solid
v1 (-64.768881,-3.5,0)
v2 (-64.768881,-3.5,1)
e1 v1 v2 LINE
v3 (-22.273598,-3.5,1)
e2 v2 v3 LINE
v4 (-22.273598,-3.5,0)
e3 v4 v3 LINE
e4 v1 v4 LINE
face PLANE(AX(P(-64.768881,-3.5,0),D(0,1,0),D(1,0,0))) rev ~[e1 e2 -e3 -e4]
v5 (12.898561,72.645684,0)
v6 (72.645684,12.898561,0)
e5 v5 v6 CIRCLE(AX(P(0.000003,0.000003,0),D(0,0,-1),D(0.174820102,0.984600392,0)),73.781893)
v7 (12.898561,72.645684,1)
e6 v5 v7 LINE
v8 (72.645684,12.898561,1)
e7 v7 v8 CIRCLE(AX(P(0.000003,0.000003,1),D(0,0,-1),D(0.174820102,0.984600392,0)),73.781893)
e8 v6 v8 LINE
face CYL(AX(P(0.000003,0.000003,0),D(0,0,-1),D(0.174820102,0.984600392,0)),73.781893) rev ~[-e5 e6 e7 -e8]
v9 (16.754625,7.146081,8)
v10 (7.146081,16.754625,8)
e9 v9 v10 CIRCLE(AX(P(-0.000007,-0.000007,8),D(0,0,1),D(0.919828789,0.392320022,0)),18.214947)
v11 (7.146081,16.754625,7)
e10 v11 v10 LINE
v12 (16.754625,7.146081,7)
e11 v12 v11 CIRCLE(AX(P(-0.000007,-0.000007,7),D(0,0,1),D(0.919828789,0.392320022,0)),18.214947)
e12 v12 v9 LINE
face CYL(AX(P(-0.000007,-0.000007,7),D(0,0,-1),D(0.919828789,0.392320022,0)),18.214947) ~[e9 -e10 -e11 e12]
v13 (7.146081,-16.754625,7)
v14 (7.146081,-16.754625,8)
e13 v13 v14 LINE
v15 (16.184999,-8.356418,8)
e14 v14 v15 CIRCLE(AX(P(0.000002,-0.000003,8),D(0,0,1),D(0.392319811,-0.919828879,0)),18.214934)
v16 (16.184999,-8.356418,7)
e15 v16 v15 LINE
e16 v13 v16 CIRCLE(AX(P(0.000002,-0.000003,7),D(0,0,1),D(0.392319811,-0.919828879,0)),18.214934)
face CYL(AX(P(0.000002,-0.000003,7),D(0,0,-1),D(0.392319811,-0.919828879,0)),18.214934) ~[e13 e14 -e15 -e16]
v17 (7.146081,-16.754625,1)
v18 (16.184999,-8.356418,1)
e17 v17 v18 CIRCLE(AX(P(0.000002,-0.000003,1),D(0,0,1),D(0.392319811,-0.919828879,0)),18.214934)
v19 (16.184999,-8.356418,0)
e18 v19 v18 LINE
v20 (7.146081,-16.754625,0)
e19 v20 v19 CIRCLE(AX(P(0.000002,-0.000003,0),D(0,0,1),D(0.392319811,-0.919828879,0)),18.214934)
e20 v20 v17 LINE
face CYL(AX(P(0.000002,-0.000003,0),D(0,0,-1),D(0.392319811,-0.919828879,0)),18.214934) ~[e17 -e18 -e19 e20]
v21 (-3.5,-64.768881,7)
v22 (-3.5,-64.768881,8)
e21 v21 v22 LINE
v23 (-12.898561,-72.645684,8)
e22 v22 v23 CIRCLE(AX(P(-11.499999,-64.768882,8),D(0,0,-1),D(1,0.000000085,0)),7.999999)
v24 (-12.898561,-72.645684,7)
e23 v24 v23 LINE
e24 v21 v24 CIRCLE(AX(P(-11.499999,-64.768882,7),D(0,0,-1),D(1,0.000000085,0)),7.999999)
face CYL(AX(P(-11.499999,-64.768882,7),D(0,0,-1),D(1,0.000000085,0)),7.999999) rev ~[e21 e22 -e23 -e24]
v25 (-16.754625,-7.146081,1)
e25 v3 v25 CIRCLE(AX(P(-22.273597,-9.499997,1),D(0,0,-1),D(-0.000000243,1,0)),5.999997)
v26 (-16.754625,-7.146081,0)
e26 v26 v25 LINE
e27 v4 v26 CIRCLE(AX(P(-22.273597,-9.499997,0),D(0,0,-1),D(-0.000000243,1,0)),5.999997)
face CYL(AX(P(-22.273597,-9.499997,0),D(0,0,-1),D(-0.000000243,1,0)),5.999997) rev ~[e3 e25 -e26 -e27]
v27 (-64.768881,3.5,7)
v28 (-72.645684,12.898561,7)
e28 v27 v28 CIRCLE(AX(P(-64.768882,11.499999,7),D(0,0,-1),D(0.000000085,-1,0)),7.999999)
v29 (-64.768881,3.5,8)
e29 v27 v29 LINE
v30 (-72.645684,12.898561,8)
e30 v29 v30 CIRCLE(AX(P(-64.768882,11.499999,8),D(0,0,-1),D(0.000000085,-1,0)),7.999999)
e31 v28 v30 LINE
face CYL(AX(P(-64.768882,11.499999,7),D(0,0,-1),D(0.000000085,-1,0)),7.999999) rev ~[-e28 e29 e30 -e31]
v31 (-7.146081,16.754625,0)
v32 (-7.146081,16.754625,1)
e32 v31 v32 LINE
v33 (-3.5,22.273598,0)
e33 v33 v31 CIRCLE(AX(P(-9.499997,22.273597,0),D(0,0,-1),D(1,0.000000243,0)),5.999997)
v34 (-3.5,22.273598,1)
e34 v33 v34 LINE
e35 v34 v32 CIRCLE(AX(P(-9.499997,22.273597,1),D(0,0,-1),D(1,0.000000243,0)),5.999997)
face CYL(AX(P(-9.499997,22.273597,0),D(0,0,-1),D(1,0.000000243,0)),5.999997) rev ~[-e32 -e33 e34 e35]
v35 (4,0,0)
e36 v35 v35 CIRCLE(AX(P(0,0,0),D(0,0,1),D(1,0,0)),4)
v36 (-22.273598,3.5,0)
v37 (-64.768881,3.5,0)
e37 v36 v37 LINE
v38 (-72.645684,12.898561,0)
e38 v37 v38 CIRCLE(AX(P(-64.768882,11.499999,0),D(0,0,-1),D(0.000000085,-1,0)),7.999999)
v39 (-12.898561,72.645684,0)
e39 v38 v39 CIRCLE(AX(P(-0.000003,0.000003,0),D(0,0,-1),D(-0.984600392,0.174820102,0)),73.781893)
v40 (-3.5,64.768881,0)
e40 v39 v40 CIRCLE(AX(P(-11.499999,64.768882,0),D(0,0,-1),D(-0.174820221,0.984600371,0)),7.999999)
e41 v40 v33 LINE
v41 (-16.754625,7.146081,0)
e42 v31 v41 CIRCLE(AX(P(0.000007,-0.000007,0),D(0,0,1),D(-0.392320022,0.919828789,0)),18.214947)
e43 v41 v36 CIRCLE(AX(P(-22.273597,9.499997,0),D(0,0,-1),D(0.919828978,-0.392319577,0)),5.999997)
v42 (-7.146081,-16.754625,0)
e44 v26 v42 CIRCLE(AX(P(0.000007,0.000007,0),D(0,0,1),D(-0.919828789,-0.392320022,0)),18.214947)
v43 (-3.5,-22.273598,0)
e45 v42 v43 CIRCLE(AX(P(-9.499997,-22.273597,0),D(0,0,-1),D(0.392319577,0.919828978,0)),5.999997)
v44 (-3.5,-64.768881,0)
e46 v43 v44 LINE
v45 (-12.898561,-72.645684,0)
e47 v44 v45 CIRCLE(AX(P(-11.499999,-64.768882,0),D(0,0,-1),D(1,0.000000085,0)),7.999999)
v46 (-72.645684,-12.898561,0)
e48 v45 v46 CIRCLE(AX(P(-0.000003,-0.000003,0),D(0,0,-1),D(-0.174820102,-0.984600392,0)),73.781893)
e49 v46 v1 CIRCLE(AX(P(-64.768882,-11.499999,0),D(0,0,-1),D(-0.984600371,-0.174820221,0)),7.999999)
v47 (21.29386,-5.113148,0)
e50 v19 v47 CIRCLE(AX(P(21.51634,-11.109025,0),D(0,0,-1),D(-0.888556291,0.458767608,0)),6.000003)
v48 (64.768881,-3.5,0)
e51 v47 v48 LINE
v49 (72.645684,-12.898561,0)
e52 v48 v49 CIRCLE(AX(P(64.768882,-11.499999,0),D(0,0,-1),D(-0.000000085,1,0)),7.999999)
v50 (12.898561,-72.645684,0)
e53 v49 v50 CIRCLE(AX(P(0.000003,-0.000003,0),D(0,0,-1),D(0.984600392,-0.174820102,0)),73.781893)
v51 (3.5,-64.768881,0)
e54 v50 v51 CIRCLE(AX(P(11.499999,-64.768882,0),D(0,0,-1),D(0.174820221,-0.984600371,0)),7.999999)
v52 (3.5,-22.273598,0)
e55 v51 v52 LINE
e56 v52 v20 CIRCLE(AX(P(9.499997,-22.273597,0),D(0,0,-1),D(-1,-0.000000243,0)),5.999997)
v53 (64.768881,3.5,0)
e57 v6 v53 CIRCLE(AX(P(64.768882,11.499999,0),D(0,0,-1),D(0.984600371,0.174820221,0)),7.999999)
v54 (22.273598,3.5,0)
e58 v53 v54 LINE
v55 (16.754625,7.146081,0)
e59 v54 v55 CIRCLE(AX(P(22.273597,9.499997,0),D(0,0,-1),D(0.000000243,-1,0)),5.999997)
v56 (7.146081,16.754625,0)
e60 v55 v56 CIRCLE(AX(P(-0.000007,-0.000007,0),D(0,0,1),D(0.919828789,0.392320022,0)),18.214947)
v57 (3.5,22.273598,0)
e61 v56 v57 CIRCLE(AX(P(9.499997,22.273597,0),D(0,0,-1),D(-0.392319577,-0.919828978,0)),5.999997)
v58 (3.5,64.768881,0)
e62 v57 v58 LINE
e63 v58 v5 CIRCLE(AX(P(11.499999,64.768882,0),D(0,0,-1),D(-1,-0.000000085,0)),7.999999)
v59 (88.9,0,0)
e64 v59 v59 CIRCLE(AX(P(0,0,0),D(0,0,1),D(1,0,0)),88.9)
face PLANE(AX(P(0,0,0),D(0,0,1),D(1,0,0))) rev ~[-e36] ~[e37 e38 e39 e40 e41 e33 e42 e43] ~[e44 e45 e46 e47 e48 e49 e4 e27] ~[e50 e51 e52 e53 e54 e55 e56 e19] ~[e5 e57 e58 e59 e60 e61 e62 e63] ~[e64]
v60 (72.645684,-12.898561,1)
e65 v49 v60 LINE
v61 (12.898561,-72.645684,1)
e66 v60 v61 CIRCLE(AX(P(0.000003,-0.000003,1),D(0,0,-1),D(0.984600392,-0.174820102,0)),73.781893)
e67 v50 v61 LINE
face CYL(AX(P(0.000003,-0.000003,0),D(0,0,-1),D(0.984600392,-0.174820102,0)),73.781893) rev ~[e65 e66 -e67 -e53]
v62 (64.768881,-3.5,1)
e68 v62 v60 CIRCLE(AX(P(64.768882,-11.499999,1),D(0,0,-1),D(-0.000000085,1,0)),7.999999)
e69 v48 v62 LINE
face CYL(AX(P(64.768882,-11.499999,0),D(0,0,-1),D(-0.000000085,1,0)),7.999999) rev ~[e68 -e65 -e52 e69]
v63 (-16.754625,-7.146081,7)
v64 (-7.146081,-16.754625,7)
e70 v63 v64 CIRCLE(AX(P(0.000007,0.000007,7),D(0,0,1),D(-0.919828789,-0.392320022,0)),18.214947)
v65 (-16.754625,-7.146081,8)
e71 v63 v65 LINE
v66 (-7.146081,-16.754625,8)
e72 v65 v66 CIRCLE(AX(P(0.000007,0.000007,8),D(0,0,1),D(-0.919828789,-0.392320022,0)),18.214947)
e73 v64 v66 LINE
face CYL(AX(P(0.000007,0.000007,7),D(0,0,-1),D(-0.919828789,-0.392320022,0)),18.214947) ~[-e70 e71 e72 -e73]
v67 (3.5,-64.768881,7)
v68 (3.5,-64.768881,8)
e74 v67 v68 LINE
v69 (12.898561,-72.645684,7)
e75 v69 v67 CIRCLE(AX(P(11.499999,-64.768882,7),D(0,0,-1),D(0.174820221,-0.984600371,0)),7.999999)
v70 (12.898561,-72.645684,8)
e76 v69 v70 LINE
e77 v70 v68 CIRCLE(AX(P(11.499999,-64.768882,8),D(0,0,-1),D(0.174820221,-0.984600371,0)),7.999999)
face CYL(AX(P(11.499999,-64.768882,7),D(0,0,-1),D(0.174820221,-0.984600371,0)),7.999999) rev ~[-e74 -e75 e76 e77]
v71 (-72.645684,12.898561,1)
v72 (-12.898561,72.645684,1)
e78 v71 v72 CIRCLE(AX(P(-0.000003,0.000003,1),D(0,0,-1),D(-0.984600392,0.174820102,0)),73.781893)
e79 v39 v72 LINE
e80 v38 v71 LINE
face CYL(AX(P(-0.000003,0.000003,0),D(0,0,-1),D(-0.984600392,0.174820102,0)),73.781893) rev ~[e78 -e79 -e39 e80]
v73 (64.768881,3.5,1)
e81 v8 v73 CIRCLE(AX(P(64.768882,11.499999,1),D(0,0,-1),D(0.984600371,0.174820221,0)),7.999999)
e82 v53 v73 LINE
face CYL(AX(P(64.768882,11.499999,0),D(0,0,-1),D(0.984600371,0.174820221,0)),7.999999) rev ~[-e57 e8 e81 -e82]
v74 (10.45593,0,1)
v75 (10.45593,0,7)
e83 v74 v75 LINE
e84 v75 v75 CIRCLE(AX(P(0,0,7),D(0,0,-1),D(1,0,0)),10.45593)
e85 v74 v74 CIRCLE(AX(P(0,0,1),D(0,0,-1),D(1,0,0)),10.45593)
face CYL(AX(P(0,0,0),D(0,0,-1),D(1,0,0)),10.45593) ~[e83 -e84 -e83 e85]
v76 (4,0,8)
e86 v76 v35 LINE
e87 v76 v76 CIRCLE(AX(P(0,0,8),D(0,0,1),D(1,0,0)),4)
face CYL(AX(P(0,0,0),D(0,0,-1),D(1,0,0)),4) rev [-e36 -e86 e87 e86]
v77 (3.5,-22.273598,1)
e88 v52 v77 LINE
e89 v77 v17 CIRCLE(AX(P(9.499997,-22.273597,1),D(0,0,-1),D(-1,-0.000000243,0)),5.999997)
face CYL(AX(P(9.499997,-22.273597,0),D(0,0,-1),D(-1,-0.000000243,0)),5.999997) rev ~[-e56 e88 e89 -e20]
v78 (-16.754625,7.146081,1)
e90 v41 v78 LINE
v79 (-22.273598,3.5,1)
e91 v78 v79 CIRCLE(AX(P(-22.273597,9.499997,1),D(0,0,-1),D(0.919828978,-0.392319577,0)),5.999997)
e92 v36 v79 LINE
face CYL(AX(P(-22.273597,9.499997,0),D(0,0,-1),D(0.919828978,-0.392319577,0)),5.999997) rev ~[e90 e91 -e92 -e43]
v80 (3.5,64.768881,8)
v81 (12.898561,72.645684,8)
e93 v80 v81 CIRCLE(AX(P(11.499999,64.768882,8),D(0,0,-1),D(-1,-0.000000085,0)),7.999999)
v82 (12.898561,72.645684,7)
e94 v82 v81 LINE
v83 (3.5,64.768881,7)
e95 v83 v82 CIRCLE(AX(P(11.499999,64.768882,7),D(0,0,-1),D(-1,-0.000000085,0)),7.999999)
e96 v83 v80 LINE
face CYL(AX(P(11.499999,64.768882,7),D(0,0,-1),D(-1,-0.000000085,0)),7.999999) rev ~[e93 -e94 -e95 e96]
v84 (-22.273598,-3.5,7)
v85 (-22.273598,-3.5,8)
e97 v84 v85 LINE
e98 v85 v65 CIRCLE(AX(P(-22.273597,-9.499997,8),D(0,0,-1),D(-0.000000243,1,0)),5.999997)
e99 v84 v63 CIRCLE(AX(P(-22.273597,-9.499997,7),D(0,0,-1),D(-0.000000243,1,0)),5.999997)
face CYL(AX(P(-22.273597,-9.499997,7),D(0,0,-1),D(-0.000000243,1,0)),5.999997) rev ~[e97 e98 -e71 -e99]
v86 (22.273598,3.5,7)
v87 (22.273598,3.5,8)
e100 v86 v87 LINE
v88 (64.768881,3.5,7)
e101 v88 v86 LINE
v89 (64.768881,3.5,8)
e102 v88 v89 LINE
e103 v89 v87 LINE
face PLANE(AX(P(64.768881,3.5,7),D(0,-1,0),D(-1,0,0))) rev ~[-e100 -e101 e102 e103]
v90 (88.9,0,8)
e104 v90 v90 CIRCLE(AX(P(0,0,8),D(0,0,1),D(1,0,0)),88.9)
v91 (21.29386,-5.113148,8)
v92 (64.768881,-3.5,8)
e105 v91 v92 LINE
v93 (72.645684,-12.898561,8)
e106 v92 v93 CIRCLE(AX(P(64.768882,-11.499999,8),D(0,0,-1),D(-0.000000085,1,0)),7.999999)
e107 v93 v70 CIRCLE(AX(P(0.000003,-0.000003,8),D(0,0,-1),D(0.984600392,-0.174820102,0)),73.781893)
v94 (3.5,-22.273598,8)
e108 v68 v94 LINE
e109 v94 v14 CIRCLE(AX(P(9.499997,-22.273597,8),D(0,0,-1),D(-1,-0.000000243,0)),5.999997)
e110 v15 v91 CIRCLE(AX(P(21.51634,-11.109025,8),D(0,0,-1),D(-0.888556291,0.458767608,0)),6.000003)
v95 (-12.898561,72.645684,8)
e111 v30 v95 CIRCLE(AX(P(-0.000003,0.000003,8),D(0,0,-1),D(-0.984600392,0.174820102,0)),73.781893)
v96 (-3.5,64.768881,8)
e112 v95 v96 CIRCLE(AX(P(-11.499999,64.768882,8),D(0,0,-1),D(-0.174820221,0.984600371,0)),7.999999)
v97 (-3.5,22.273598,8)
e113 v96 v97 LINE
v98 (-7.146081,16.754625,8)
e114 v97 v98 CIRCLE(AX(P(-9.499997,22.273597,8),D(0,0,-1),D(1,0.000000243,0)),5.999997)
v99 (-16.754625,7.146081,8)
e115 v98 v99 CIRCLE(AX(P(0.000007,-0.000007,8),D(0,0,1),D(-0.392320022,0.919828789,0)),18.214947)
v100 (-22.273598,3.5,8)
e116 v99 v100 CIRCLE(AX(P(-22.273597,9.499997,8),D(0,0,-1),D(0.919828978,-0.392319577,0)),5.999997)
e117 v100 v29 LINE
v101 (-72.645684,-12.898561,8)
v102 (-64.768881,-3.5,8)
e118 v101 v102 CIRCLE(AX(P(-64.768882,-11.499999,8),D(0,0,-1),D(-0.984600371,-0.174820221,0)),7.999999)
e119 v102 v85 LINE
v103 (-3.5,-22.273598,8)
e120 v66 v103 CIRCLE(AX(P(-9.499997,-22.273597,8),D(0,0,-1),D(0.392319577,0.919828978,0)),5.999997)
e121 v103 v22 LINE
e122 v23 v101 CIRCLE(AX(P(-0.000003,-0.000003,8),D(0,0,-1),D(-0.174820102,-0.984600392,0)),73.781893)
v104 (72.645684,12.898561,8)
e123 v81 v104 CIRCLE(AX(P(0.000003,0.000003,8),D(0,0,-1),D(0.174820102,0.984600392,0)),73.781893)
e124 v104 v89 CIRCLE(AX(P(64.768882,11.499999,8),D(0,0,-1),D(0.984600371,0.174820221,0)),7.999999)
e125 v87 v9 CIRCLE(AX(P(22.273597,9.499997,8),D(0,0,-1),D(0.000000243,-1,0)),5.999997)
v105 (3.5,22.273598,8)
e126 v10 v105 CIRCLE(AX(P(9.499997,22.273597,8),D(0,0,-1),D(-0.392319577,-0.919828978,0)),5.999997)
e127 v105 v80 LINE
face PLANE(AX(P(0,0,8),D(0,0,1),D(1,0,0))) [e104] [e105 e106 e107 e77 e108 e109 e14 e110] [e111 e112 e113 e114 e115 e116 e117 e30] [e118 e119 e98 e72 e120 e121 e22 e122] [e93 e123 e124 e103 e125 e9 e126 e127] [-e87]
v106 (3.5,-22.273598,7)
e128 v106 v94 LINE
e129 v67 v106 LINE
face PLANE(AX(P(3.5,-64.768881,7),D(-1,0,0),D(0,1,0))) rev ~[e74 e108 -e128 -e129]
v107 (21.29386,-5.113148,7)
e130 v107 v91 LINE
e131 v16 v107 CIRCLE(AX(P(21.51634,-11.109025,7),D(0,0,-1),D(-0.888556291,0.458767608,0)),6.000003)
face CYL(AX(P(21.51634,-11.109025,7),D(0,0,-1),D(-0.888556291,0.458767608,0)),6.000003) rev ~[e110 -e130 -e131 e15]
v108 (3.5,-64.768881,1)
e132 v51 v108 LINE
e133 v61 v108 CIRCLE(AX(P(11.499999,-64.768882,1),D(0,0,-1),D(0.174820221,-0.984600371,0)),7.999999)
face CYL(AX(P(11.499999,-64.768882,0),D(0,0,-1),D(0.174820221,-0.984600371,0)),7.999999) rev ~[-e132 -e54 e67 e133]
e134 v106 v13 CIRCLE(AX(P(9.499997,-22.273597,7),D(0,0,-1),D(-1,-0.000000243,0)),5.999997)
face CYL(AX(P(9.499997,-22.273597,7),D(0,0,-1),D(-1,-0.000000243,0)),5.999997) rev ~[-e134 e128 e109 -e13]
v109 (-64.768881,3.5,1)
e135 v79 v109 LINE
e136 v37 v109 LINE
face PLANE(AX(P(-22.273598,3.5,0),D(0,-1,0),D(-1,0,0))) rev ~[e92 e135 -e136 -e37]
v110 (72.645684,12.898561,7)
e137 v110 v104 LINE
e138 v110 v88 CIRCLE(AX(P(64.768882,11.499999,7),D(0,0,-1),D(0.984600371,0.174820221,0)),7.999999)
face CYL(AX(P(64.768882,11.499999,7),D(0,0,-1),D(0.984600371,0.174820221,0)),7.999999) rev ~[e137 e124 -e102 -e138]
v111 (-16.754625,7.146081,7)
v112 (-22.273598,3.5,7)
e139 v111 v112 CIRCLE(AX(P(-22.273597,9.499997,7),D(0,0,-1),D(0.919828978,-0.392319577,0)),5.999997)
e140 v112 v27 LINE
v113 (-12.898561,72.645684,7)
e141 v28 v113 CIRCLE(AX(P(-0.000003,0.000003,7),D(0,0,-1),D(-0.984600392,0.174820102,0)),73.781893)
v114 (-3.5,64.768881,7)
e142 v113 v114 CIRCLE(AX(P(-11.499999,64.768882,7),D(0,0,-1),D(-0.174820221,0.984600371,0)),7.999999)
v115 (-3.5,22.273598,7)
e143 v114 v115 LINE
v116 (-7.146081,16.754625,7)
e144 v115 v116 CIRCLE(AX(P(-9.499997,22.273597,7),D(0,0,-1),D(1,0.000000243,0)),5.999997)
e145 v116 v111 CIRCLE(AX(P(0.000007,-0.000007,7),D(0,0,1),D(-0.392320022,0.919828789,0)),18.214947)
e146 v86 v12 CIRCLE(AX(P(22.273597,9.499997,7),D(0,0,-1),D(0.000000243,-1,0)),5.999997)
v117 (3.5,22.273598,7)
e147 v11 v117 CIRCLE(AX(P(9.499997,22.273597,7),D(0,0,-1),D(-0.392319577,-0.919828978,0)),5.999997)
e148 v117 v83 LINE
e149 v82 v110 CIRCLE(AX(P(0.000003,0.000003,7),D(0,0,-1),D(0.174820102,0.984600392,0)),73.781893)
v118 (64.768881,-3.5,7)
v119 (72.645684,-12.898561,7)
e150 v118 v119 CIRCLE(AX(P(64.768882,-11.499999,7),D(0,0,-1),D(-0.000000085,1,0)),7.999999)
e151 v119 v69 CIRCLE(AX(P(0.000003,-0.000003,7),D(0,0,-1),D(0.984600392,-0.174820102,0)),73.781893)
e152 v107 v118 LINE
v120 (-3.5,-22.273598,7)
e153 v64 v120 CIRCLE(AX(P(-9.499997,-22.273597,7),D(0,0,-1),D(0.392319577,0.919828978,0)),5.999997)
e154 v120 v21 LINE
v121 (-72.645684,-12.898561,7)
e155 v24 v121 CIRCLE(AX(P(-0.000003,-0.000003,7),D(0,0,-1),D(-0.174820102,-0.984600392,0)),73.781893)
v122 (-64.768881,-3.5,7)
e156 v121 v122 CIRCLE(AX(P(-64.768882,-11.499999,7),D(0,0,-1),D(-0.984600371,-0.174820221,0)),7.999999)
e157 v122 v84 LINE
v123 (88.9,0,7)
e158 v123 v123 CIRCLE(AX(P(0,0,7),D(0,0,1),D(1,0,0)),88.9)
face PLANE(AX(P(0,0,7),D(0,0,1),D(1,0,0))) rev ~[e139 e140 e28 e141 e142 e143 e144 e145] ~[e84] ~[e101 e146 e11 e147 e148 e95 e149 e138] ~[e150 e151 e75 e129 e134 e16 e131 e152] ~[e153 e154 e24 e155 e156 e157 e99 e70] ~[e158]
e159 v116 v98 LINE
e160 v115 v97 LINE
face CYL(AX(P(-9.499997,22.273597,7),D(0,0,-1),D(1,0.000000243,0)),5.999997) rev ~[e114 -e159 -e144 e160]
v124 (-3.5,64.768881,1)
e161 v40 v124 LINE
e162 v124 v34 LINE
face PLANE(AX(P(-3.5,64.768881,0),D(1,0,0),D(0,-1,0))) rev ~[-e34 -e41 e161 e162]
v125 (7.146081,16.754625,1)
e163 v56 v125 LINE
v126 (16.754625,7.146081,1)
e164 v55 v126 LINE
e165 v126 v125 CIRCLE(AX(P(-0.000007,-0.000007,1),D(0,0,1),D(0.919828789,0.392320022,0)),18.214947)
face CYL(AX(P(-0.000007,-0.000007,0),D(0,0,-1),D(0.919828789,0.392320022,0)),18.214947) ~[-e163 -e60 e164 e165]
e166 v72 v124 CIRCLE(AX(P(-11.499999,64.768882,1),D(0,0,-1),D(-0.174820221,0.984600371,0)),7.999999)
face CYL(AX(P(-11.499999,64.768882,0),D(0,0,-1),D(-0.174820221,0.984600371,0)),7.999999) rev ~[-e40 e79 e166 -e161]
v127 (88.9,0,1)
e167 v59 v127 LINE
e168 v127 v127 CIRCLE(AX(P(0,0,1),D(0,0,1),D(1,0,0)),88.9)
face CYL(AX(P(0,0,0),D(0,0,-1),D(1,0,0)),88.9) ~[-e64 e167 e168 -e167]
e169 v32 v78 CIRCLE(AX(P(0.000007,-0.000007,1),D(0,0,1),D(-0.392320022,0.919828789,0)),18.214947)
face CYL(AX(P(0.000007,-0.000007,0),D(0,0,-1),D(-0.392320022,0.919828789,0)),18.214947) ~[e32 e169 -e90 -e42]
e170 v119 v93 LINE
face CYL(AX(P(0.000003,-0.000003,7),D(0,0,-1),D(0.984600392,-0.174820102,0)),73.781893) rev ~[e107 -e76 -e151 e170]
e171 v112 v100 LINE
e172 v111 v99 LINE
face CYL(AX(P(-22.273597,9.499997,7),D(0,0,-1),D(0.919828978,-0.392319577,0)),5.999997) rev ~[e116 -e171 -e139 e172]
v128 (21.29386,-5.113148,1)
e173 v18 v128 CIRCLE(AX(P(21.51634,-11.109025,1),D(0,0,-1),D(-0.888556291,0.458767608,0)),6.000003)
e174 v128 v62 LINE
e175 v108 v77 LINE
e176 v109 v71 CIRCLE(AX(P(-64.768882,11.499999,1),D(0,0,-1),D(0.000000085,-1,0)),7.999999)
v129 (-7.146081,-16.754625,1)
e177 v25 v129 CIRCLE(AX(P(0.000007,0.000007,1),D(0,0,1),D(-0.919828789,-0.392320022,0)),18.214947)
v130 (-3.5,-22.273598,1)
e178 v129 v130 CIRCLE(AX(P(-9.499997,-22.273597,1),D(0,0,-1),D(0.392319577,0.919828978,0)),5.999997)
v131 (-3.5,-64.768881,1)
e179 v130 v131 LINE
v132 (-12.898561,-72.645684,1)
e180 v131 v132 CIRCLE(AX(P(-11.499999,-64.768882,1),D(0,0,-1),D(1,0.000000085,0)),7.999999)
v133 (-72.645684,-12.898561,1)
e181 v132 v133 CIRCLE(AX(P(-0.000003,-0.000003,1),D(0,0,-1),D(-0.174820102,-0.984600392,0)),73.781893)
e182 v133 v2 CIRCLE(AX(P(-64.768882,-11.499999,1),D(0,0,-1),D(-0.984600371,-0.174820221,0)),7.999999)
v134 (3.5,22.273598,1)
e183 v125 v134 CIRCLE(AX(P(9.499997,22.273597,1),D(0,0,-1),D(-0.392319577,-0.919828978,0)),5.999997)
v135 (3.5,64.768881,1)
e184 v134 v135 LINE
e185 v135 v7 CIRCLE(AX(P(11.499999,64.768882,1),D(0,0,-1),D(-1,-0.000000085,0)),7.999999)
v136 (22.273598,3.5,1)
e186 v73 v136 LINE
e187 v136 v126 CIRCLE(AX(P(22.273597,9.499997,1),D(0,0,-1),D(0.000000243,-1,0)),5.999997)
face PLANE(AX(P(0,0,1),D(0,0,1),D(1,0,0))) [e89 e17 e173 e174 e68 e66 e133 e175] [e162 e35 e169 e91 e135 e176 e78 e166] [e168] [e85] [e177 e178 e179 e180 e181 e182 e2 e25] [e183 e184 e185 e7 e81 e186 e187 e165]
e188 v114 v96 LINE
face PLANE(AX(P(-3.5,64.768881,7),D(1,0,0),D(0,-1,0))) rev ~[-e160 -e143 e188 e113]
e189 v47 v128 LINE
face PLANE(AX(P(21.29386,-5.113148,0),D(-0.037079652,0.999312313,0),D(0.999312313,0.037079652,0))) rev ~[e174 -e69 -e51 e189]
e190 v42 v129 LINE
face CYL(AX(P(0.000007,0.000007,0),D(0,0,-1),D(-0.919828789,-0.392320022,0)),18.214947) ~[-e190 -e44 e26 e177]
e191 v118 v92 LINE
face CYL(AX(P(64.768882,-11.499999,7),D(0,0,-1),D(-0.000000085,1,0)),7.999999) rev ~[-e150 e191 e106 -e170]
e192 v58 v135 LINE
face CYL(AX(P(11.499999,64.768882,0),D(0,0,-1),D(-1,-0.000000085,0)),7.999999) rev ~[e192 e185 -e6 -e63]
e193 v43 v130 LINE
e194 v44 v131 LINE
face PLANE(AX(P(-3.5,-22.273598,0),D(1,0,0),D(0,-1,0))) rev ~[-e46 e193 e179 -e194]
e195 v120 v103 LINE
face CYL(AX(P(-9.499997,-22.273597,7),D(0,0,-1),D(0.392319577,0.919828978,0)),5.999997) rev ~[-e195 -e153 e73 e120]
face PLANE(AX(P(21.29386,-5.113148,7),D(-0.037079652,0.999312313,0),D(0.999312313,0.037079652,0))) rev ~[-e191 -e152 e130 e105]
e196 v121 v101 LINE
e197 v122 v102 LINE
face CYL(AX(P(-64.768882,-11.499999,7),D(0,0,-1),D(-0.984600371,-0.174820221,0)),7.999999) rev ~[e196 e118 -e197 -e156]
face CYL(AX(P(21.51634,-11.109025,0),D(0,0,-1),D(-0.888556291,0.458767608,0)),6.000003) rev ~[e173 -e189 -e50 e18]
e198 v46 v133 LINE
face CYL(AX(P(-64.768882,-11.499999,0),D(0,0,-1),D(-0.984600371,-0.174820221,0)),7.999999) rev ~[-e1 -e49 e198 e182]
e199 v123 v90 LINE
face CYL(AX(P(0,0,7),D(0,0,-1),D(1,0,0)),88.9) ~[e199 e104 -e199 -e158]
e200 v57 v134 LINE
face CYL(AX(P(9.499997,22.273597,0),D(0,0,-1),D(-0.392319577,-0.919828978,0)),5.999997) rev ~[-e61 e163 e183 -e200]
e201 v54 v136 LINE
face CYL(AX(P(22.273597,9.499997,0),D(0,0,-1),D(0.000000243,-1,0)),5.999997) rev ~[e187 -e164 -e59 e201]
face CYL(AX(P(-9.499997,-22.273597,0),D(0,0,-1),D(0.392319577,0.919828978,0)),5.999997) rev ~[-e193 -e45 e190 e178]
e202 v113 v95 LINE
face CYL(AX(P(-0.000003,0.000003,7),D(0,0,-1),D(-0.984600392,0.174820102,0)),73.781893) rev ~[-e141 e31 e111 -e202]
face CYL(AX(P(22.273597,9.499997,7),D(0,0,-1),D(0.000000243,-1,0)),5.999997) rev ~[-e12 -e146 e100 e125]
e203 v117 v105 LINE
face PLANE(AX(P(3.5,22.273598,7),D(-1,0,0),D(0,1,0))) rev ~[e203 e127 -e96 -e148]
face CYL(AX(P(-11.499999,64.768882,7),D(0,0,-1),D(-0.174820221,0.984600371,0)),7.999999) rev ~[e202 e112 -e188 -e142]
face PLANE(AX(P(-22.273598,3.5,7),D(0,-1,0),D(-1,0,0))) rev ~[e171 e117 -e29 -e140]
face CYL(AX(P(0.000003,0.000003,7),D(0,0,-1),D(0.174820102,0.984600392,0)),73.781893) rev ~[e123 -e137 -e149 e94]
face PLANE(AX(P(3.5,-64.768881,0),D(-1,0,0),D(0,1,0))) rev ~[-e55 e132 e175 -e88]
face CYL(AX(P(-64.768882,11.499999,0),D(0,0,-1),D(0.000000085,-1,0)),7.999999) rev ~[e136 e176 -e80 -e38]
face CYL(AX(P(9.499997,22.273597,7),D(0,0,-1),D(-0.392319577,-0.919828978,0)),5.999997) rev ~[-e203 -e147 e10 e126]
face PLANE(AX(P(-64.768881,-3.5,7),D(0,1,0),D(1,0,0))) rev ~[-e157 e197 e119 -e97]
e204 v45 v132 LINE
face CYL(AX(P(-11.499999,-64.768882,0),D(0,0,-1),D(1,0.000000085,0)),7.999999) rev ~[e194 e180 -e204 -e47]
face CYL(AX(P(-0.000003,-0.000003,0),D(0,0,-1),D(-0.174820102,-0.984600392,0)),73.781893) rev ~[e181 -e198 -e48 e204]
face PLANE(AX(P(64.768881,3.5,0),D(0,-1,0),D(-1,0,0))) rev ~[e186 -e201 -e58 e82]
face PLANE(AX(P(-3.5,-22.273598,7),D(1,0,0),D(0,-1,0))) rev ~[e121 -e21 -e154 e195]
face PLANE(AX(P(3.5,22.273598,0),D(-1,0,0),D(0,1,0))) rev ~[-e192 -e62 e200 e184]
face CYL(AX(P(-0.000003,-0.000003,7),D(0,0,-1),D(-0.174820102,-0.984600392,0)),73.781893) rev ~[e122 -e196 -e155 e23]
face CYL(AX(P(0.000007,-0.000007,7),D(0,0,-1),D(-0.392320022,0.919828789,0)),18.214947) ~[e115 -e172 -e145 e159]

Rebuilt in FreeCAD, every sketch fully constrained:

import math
import FreeCAD as App
import Part
import Sketcher
Q = App.Units.Quantity

doc = App.newDocument("Part")
body = doc.addObject("PartDesign::Body", "Body")

sketch1 = body.newObject("Sketcher::SketchObject", "Sketch")
sketch1.AttachmentSupport = (doc.getObject("XY_Plane"), [""])
sketch1.MapMode = "FlatFace"
sketch1.addGeometry([
    Part.Circle(App.Vector(0, 0, 0), App.Vector(0, 0, 1), 88.9),
    Part.ArcOfCircle(Part.Circle(App.Vector(-0.000003, -0.000003, 0), App.Vector(0, 0, 1), 73.781893), math.radians(-169.931811), math.radians(-100.068189)),
    Part.ArcOfCircle(Part.Circle(App.Vector(-64.768882, -11.499999, 0), App.Vector(0, 0, 1), 7.999999), math.radians(89.999995), math.radians(190.068196)),
    Part.LineSegment(App.Vector(-64.768881, -3.5, 0), App.Vector(-22.273598, -3.5, 0)),
    Part.ArcOfCircle(Part.Circle(App.Vector(-22.273597, -9.499997, 0), App.Vector(0, 0, 1), 5.999997), math.radians(23.098907), math.radians(90.000014)),
    Part.ArcOfCircle(Part.Circle(App.Vector(0.000007, 0.000007, 0), App.Vector(0, 0, 1), 18.214947), math.radians(-156.901065), math.radians(-113.098935)),
    Part.ArcOfCircle(Part.Circle(App.Vector(-9.499997, -22.273597, 0), App.Vector(0, 0, 1), 5.999997), math.radians(-0.000014), math.radians(66.901093)),
    Part.LineSegment(App.Vector(-3.5, -22.273598, 0), App.Vector(-3.5, -64.768881, 0)),
    Part.ArcOfCircle(Part.Circle(App.Vector(-11.499999, -64.768882, 0), App.Vector(0, 0, 1), 7.999999), math.radians(-100.068196), math.radians(0.000005)),
    Part.ArcOfCircle(Part.Circle(App.Vector(64.768882, -11.499999, 0), App.Vector(0, 0, 1), 7.999999), math.radians(-10.068196), math.radians(90.000005)),
    Part.ArcOfCircle(Part.Circle(App.Vector(0.000003, -0.000003, 0), App.Vector(0, 0, 1), 73.781893), math.radians(-79.931811), math.radians(-10.068189)),
    Part.ArcOfCircle(Part.Circle(App.Vector(11.499999, -64.768882, 0), App.Vector(0, 0, 1), 7.999999), math.radians(179.999995), math.radians(280.068196)),
    Part.LineSegment(App.Vector(3.5, -64.768881, 0), App.Vector(3.5, -22.273598, 0)),
    Part.ArcOfCircle(Part.Circle(App.Vector(9.499997, -22.273597, 0), App.Vector(0, 0, 1), 5.999997), math.radians(113.098907), math.radians(180.000014)),
    Part.ArcOfCircle(Part.Circle(App.Vector(0.000002, -0.000003, 0), App.Vector(0, 0, 1), 18.214934), math.radians(-66.901078), math.radians(-27.307589)),
    Part.ArcOfCircle(Part.Circle(App.Vector(21.51634, -11.109025, 0), App.Vector(0, 0, 1), 6.000003), math.radians(92.125011), math.radians(152.692388)),
    Part.LineSegment(App.Vector(21.29386, -5.113148, 0), App.Vector(64.768881, -3.5, 0)),
    Part.ArcOfCircle(Part.Circle(App.Vector(-64.768882, 11.499999, 0), App.Vector(0, 0, 1), 7.999999), math.radians(169.931804), math.radians(270.000005)),
    Part.ArcOfCircle(Part.Circle(App.Vector(-0.000003, 0.000003, 0), App.Vector(0, 0, 1), 73.781893), math.radians(100.068189), math.radians(169.931811)),
    Part.ArcOfCircle(Part.Circle(App.Vector(-11.499999, 64.768882, 0), App.Vector(0, 0, 1), 7.999999), math.radians(-0.000005), math.radians(100.068196)),
    Part.LineSegment(App.Vector(-3.5, 64.768881, 0), App.Vector(-3.5, 22.273598, 0)),
    Part.ArcOfCircle(Part.Circle(App.Vector(-9.499997, 22.273597, 0), App.Vector(0, 0, 1), 5.999997), math.radians(-66.901093), math.radians(0.000014)),
    Part.ArcOfCircle(Part.Circle(App.Vector(0.000007, -0.000007, 0), App.Vector(0, 0, 1), 18.214947), math.radians(113.098935), math.radians(156.901065)),
    Part.ArcOfCircle(Part.Circle(App.Vector(-22.273597, 9.499997, 0), App.Vector(0, 0, 1), 5.999997), math.radians(-90.000014), math.radians(-23.098907)),
    Part.LineSegment(App.Vector(-22.273598, 3.5, 0), App.Vector(-64.768881, 3.5, 0)),
    Part.Circle(App.Vector(0, 0, 0), App.Vector(0, 0, 1), 4),
    Part.ArcOfCircle(Part.Circle(App.Vector(9.499997, 22.273597, 0), App.Vector(0, 0, 1), 5.999997), math.radians(179.999986), math.radians(246.901093)),
    Part.LineSegment(App.Vector(3.5, 22.273598, 0), App.Vector(3.5, 64.768881, 0)),
    Part.ArcOfCircle(Part.Circle(App.Vector(11.499999, 64.768882, 0), App.Vector(0, 0, 1), 7.999999), math.radians(79.931804), math.radians(180.000005)),
    Part.ArcOfCircle(Part.Circle(App.Vector(0.000003, 0.000003, 0), App.Vector(0, 0, 1), 73.781893), math.radians(10.068189), math.radians(79.931811)),
    Part.ArcOfCircle(Part.Circle(App.Vector(64.768882, 11.499999, 0), App.Vector(0, 0, 1), 7.999999), math.radians(-90.000005), math.radians(10.068196)),
    Part.LineSegment(App.Vector(64.768881, 3.5, 0), App.Vector(22.273598, 3.5, 0)),
    Part.ArcOfCircle(Part.Circle(App.Vector(22.273597, 9.499997, 0), App.Vector(0, 0, 1), 5.999997), math.radians(-156.901093), math.radians(-89.999986)),
    Part.ArcOfCircle(Part.Circle(App.Vector(-0.000007, -0.000007, 0), App.Vector(0, 0, 1), 18.214947), math.radians(23.098935), math.radians(66.901065)),
], False)
sketch1.addConstraint([
    Sketcher.Constraint("Coincident", 1, 1, 2, 2),
    Sketcher.Constraint("Coincident", 2, 1, 3, 1),
    Sketcher.Constraint("Coincident", 3, 2, 4, 2),
    Sketcher.Constraint("Coincident", 4, 1, 5, 1),
    Sketcher.Constraint("Coincident", 5, 2, 6, 2),
    Sketcher.Constraint("Coincident", 6, 1, 7, 1),
    Sketcher.Constraint("Coincident", 7, 2, 8, 2),
    Sketcher.Constraint("Coincident", 8, 1, 1, 2),
    Sketcher.Constraint("Coincident", 9, 1, 10, 2),
    Sketcher.Constraint("Coincident", 10, 1, 11, 2),
    Sketcher.Constraint("Coincident", 11, 1, 12, 1),
    Sketcher.Constraint("Coincident", 12, 2, 13, 2),
    Sketcher.Constraint("Coincident", 13, 1, 14, 1),
    Sketcher.Constraint("Coincident", 14, 2, 15, 2),
    Sketcher.Constraint("Coincident", 15, 1, 16, 1),
    Sketcher.Constraint("Coincident", 16, 2, 9, 2),
    Sketcher.Constraint("Coincident", 17, 1, 18, 2),
    Sketcher.Constraint("Coincident", 18, 1, 19, 2),
    Sketcher.Constraint("Coincident", 19, 1, 20, 1),
    Sketcher.Constraint("Coincident", 20, 2, 21, 2),
    Sketcher.Constraint("Coincident", 21, 1, 22, 1),
    Sketcher.Constraint("Coincident", 22, 2, 23, 2),
    Sketcher.Constraint("Coincident", 23, 1, 24, 1),
    Sketcher.Constraint("Coincident", 24, 2, 17, 2),
    Sketcher.Constraint("Coincident", 26, 1, 27, 1),
    Sketcher.Constraint("Coincident", 27, 2, 28, 2),
    Sketcher.Constraint("Coincident", 28, 1, 29, 2),
    Sketcher.Constraint("Coincident", 29, 1, 30, 2),
    Sketcher.Constraint("Coincident", 30, 1, 31, 1),
    Sketcher.Constraint("Coincident", 31, 2, 32, 2),
    Sketcher.Constraint("Coincident", 32, 1, 33, 1),
    Sketcher.Constraint("Coincident", 33, 2, 26, 2),
    Sketcher.Constraint("Horizontal", 3),
    Sketcher.Constraint("Vertical", 7),
    Sketcher.Constraint("Vertical", 12),
    Sketcher.Constraint("Vertical", 20),
    Sketcher.Constraint("Horizontal", 24),
    Sketcher.Constraint("Vertical", 27),
    Sketcher.Constraint("Horizontal", 31),
    Sketcher.Constraint("Coincident", 0, 3, -1, 1),
    Sketcher.Constraint("Coincident", 1, 3, -1, 1),
    Sketcher.Constraint("Coincident", 10, 3, -1, 1),
    Sketcher.Constraint("Coincident", 14, 3, -1, 1),
    Sketcher.Constraint("Coincident", 18, 3, -1, 1),
    Sketcher.Constraint("Coincident", 25, 3, -1, 1),
    Sketcher.Constraint("Coincident", 29, 3, -1, 1),
    Sketcher.Constraint("Coincident", 22, 3, 10, 3),
    Sketcher.Constraint("Coincident", 33, 3, 1, 3),
    Sketcher.Constraint("Diameter", 25, Q("8 mm")),
    Sketcher.Constraint("Radius", 2, Q("7.999999 mm")),
    Sketcher.Constraint("Radius", 8, Q("7.999999 mm")),
    Sketcher.Constraint("Radius", 9, Q("7.999999 mm")),
    Sketcher.Constraint("Radius", 11, Q("7.999999 mm")),
    Sketcher.Constraint("Radius", 17, Q("7.999999 mm")),
    Sketcher.Constraint("Radius", 19, Q("7.999999 mm")),
    Sketcher.Constraint("Radius", 28, Q("7.999999 mm")),
    Sketcher.Constraint("Radius", 30, Q("7.999999 mm")),
    Sketcher.Constraint("Diameter", 0, Q("177.8 mm")),
    Sketcher.Constraint("DistanceY", 2, 3, 4, 3, Q("2.000002 mm")),
    Sketcher.Constraint("DistanceX", 8, 3, 6, 3, Q("2.000002 mm")),
    Sketcher.Constraint("DistanceY", 9, 3, 4, 3, Q("2.000002 mm")),
    Sketcher.Constraint("DistanceX", 8, 3, 11, 3, Q("22.999999 mm")),
    Sketcher.Constraint("DistanceY", 2, 3, 17, 3, Q("22.999999 mm")),
    Sketcher.Constraint("DistanceX", 19, 3, 28, 3, Q("22.999999 mm")),
    Sketcher.Constraint("DistanceX", 26, 3, 28, 3, Q("2.000002 mm")),
    Sketcher.Constraint("DistanceY", 9, 3, 30, 3, Q("22.999999 mm")),
    Sketcher.Constraint("DistanceY", 2, 3, -1, 1, Q("11.499999 mm")),
    Sketcher.Constraint("DistanceX", 8, 3, -1, 1, Q("11.499999 mm")),
    Sketcher.Constraint("DistanceX", 19, 3, -1, 1, Q("11.499999 mm")),
    Sketcher.Constraint("DistanceX", 1, 3, 13, 3, Q("9.5 mm")),
    Sketcher.Constraint("DistanceX", 21, 3, 14, 3, Q("9.499999 mm")),
    Sketcher.Constraint("DistanceY", 1, 3, 23, 3, Q("9.5 mm")),
    Sketcher.Constraint("DistanceX", -1, 1, 14, 2, Q("16.184999 mm")),
    Sketcher.Constraint("Radius", 1, Q("73.781893 mm")),
    Sketcher.Constraint("Radius", 5, Q("18.214947 mm")),
    Sketcher.Constraint("Radius", 10, Q("73.781893 mm")),
    Sketcher.Constraint("Radius", 14, Q("18.214934 mm")),
    Sketcher.Constraint("Radius", 15, Q("6.000003 mm")),
    Sketcher.Constraint("Radius", 18, Q("73.781893 mm")),
    Sketcher.Constraint("Radius", 22, Q("18.214947 mm")),
    Sketcher.Constraint("Radius", 29, Q("73.781893 mm")),
    Sketcher.Constraint("Radius", 32, Q("5.999997 mm")),
    Sketcher.Constraint("Radius", 33, Q("18.214947 mm")),
    Sketcher.Constraint("DistanceX", 3, 2, -1, 1, Q("22.273598 mm")),
    Sketcher.Constraint("DistanceY", 6, 1, -1, 1, Q("22.273598 mm")),
    Sketcher.Constraint("DistanceY", 12, 2, -1, 1, Q("22.273598 mm")),
    Sketcher.Constraint("DistanceY", -1, 1, 20, 2, Q("22.273598 mm")),
    Sketcher.Constraint("DistanceX", 23, 1, -1, 1, Q("22.273598 mm")),
    Sketcher.Constraint("DistanceY", -1, 1, 26, 1, Q("22.273598 mm")),
    Sketcher.Constraint("DistanceX", -1, 1, 31, 2, Q("22.273598 mm")),
    Sketcher.Constraint("DistanceX", 4, 3, 6, 3, Q("12.773599 mm")),
    Sketcher.Constraint("DistanceY", 6, 3, 4, 3, Q("12.773599 mm")),
    Sketcher.Constraint("DistanceY", 13, 1, 15, 3, Q("5.6456 mm")),
    Sketcher.Constraint("DistanceY", 14, 2, 32, 1, Q("15.502499 mm")),
    Sketcher.Constraint("Distance", 16, Q("43.504939 mm")),
    Sketcher.Constraint("DistanceX", 3, 1, 3, 2, Q("42.495283 mm")),
    Sketcher.Constraint("DistanceX", 24, 2, 24, 1, Q("42.495283 mm")),
    Sketcher.Constraint("DistanceX", 31, 2, 31, 1, Q("42.495283 mm")),
    Sketcher.Constraint("DistanceY", 7, 2, 7, 1, Q("42.495283 mm")),
    Sketcher.Constraint("DistanceY", 12, 1, 12, 2, Q("42.495283 mm")),
    Sketcher.Constraint("DistanceY", 20, 2, 20, 1, Q("42.495283 mm")),
    Sketcher.Constraint("DistanceY", 27, 1, 27, 2, Q("42.495283 mm")),
    Sketcher.Constraint("DistanceX", -1, 1, 15, 3, Q("21.51634 mm")),
    Sketcher.Constraint("DistanceY", 1, 1, -1, 1, Q("12.898561 mm")),
    Sketcher.Constraint("DistanceY", 4, 1, -1, 1, Q("7.146081 mm")),
    Sketcher.Constraint("DistanceX", 5, 2, -1, 1, Q("7.146081 mm")),
    Sketcher.Constraint("DistanceX", 8, 1, -1, 1, Q("12.898561 mm")),
    Sketcher.Constraint("DistanceY", 9, 1, -1, 1, Q("12.898561 mm")),
    Sketcher.Constraint("DistanceX", -1, 1, 10, 1, Q("12.898561 mm")),
    Sketcher.Constraint("DistanceX", -1, 1, 15, 1, Q("21.29386 mm")),
    Sketcher.Constraint("DistanceY", -1, 1, 17, 1, Q("12.898561 mm")),
    Sketcher.Constraint("DistanceX", 18, 1, -1, 1, Q("12.898561 mm")),
    Sketcher.Constraint("DistanceX", 21, 1, -1, 1, Q("7.146081 mm")),
    Sketcher.Constraint("DistanceY", -1, 1, 22, 2, Q("7.146081 mm")),
    Sketcher.Constraint("DistanceX", -1, 1, 28, 1, Q("12.898561 mm")),
    Sketcher.Constraint("DistanceY", -1, 1, 29, 1, Q("12.898561 mm")),
    Sketcher.Constraint("DistanceX", -1, 1, 33, 2, Q("7.146081 mm")),
])
pad1 = body.newObject("PartDesign::Pad", "Pad")
pad1.Profile = sketch1
pad1.Length = 1

sketch2 = body.newObject("Sketcher::SketchObject", "Sketch001")
sketch2.AttachmentSupport = (doc.getObject("XY_Plane"), [""])
sketch2.MapMode = "FlatFace"
sketch2.addGeometry([
    Part.Circle(App.Vector(0, 0, 0), App.Vector(0, 0, 1), 10.45593),
    Part.Circle(App.Vector(0, 0, 0), App.Vector(0, 0, 1), 4),
], False)
sketch2.addConstraint([
    Sketcher.Constraint("Coincident", 0, 3, -1, 1),
    Sketcher.Constraint("Coincident", 1, 3, -1, 1),
    Sketcher.Constraint("Diameter", 1, Q("8 mm")),
    Sketcher.Constraint("Diameter", 0, Q("20.91186 mm")),
])
pad2 = body.newObject("PartDesign::Pad", "Pad001")
pad2.Profile = sketch2
pad2.Length = 8

sketch3 = body.newObject("Sketcher::SketchObject", "Sketch002")
sketch3.AttachmentSupport = (doc.getObject("XY_Plane"), [""])
sketch3.MapMode = "FlatFace"
sketch3.AttachmentOffset = App.Placement(App.Vector(0, 0, 7), App.Rotation())
sketch3.addGeometry([
    Part.Circle(App.Vector(0, 0, 0), App.Vector(0, 0, 1), 88.9),
    Part.ArcOfCircle(Part.Circle(App.Vector(-9.499997, -22.273597, 0), App.Vector(0, 0, 1), 5.999997), math.radians(-0.000014), math.radians(66.901093)),
    Part.LineSegment(App.Vector(-3.5, -22.273598, 0), App.Vector(-3.5, -64.768881, 0)),
    Part.ArcOfCircle(Part.Circle(App.Vector(-11.499999, -64.768882, 0), App.Vector(0, 0, 1), 7.999999), math.radians(-100.068196), math.radians(0.000005)),
    Part.ArcOfCircle(Part.Circle(App.Vector(-0.000003, -0.000003, 0), App.Vector(0, 0, 1), 73.781893), math.radians(-169.931811), math.radians(-100.068189)),
    Part.ArcOfCircle(Part.Circle(App.Vector(-64.768882, -11.499999, 0), App.Vector(0, 0, 1), 7.999999), math.radians(89.999995), math.radians(190.068196)),
    Part.LineSegment(App.Vector(-64.768881, -3.5, 0), App.Vector(-22.273598, -3.5, 0)),
    Part.ArcOfCircle(Part.Circle(App.Vector(-22.273597, -9.499997, 0), App.Vector(0, 0, 1), 5.999997), math.radians(23.098907), math.radians(90.000014)),
    Part.ArcOfCircle(Part.Circle(App.Vector(0.000007, 0.000007, 0), App.Vector(0, 0, 1), 18.214947), math.radians(-156.901065), math.radians(-113.098935)),
    Part.ArcOfCircle(Part.Circle(App.Vector(9.499997, -22.273597, 0), App.Vector(0, 0, 1), 5.999997), math.radians(113.098907), math.radians(180.000014)),
    Part.ArcOfCircle(Part.Circle(App.Vector(0.000002, -0.000003, 0), App.Vector(0, 0, 1), 18.214934), math.radians(-66.901078), math.radians(-27.307589)),
    Part.ArcOfCircle(Part.Circle(App.Vector(21.51634, -11.109025, 0), App.Vector(0, 0, 1), 6.000003), math.radians(92.125011), math.radians(152.692388)),
    Part.LineSegment(App.Vector(21.29386, -5.113148, 0), App.Vector(64.768881, -3.5, 0)),
    Part.ArcOfCircle(Part.Circle(App.Vector(64.768882, -11.499999, 0), App.Vector(0, 0, 1), 7.999999), math.radians(-10.068196), math.radians(90.000005)),
    Part.ArcOfCircle(Part.Circle(App.Vector(0.000003, -0.000003, 0), App.Vector(0, 0, 1), 73.781893), math.radians(-79.931811), math.radians(-10.068189)),
    Part.ArcOfCircle(Part.Circle(App.Vector(11.499999, -64.768882, 0), App.Vector(0, 0, 1), 7.999999), math.radians(179.999995), math.radians(280.068196)),
    Part.LineSegment(App.Vector(3.5, -64.768881, 0), App.Vector(3.5, -22.273598, 0)),
    Part.ArcOfCircle(Part.Circle(App.Vector(-9.499997, 22.273597, 0), App.Vector(0, 0, 1), 5.999997), math.radians(-66.901093), math.radians(0.000014)),
    Part.ArcOfCircle(Part.Circle(App.Vector(0.000007, -0.000007, 0), App.Vector(0, 0, 1), 18.214947), math.radians(113.098935), math.radians(156.901065)),
    Part.ArcOfCircle(Part.Circle(App.Vector(-22.273597, 9.499997, 0), App.Vector(0, 0, 1), 5.999997), math.radians(-90.000014), math.radians(-23.098907)),
    Part.LineSegment(App.Vector(-22.273598, 3.5, 0), App.Vector(-64.768881, 3.5, 0)),
    Part.ArcOfCircle(Part.Circle(App.Vector(-64.768882, 11.499999, 0), App.Vector(0, 0, 1), 7.999999), math.radians(169.931804), math.radians(270.000005)),
    Part.ArcOfCircle(Part.Circle(App.Vector(-0.000003, 0.000003, 0), App.Vector(0, 0, 1), 73.781893), math.radians(100.068189), math.radians(169.931811)),
    Part.ArcOfCircle(Part.Circle(App.Vector(-11.499999, 64.768882, 0), App.Vector(0, 0, 1), 7.999999), math.radians(-0.000005), math.radians(100.068196)),
    Part.LineSegment(App.Vector(-3.5, 64.768881, 0), App.Vector(-3.5, 22.273598, 0)),
    Part.Circle(App.Vector(0, 0, 0), App.Vector(0, 0, 1), 4),
    Part.ArcOfCircle(Part.Circle(App.Vector(22.273597, 9.499997, 0), App.Vector(0, 0, 1), 5.999997), math.radians(-156.901093), math.radians(-89.999986)),
    Part.ArcOfCircle(Part.Circle(App.Vector(-0.000007, -0.000007, 0), App.Vector(0, 0, 1), 18.214947), math.radians(23.098935), math.radians(66.901065)),
    Part.ArcOfCircle(Part.Circle(App.Vector(9.499997, 22.273597, 0), App.Vector(0, 0, 1), 5.999997), math.radians(179.999986), math.radians(246.901093)),
    Part.LineSegment(App.Vector(3.5, 22.273598, 0), App.Vector(3.5, 64.768881, 0)),
    Part.ArcOfCircle(Part.Circle(App.Vector(11.499999, 64.768882, 0), App.Vector(0, 0, 1), 7.999999), math.radians(79.931804), math.radians(180.000005)),
    Part.ArcOfCircle(Part.Circle(App.Vector(0.000003, 0.000003, 0), App.Vector(0, 0, 1), 73.781893), math.radians(10.068189), math.radians(79.931811)),
    Part.ArcOfCircle(Part.Circle(App.Vector(64.768882, 11.499999, 0), App.Vector(0, 0, 1), 7.999999), math.radians(-90.000005), math.radians(10.068196)),
    Part.LineSegment(App.Vector(64.768881, 3.5, 0), App.Vector(22.273598, 3.5, 0)),
], False)
sketch3.addConstraint([
    Sketcher.Constraint("Coincident", 1, 1, 2, 1),
    Sketcher.Constraint("Coincident", 2, 2, 3, 2),
    Sketcher.Constraint("Coincident", 3, 1, 4, 2),
    Sketcher.Constraint("Coincident", 4, 1, 5, 2),
    Sketcher.Constraint("Coincident", 5, 1, 6, 1),
    Sketcher.Constraint("Coincident", 6, 2, 7, 2),
    Sketcher.Constraint("Coincident", 7, 1, 8, 1),
    Sketcher.Constraint("Coincident", 8, 2, 1, 2),
    Sketcher.Constraint("Coincident", 9, 1, 10, 1),
    Sketcher.Constraint("Coincident", 10, 2, 11, 2),
    Sketcher.Constraint("Coincident", 11, 1, 12, 1),
    Sketcher.Constraint("Coincident", 12, 2, 13, 2),
    Sketcher.Constraint("Coincident", 13, 1, 14, 2),
    Sketcher.Constraint("Coincident", 14, 1, 15, 2),
    Sketcher.Constraint("Coincident", 15, 1, 16, 1),
    Sketcher.Constraint("Coincident", 16, 2, 9, 2),
    Sketcher.Constraint("Coincident", 17, 1, 18, 1),
    Sketcher.Constraint("Coincident", 18, 2, 19, 2),
    Sketcher.Constraint("Coincident", 19, 1, 20, 1),
    Sketcher.Constraint("Coincident", 20, 2, 21, 2),
    Sketcher.Constraint("Coincident", 21, 1, 22, 2),
    Sketcher.Constraint("Coincident", 22, 1, 23, 2),
    Sketcher.Constraint("Coincident", 23, 1, 24, 1),
    Sketcher.Constraint("Coincident", 24, 2, 17, 2),
    Sketcher.Constraint("Coincident", 26, 1, 27, 1),
    Sketcher.Constraint("Coincident", 27, 2, 28, 2),
    Sketcher.Constraint("Coincident", 28, 1, 29, 1),
    Sketcher.Constraint("Coincident", 29, 2, 30, 2),
    Sketcher.Constraint("Coincident", 30, 1, 31, 2),
    Sketcher.Constraint("Coincident", 31, 1, 32, 2),
    Sketcher.Constraint("Coincident", 32, 1, 33, 1),
    Sketcher.Constraint("Coincident", 33, 2, 26, 2),
    Sketcher.Constraint("Vertical", 2),
    Sketcher.Constraint("Horizontal", 6),
    Sketcher.Constraint("Vertical", 16),
    Sketcher.Constraint("Horizontal", 20),
    Sketcher.Constraint("Vertical", 24),
    Sketcher.Constraint("Vertical", 29),
    Sketcher.Constraint("Horizontal", 33),
    Sketcher.Constraint("Coincident", 0, 3, -1, 1),
    Sketcher.Constraint("Coincident", 4, 3, -1, 1),
    Sketcher.Constraint("Coincident", 10, 3, -1, 1),
    Sketcher.Constraint("Coincident", 14, 3, -1, 1),
    Sketcher.Constraint("Coincident", 22, 3, -1, 1),
    Sketcher.Constraint("Coincident", 25, 3, -1, 1),
    Sketcher.Constraint("Coincident", 31, 3, -1, 1),
    Sketcher.Constraint("Coincident", 18, 3, 10, 3),
    Sketcher.Constraint("Coincident", 27, 3, 4, 3),
    Sketcher.Constraint("Diameter", 25, Q("8 mm")),
    Sketcher.Constraint("Radius", 3, Q("7.999999 mm")),
    Sketcher.Constraint("Radius", 5, Q("7.999999 mm")),
    Sketcher.Constraint("Radius", 13, Q("7.999999 mm")),
    Sketcher.Constraint("Radius", 15, Q("7.999999 mm")),
    Sketcher.Constraint("Radius", 21, Q("7.999999 mm")),
    Sketcher.Constraint("Radius", 23, Q("7.999999 mm")),
    Sketcher.Constraint("Radius", 30, Q("7.999999 mm")),
    Sketcher.Constraint("Radius", 32, Q("7.999999 mm")),
    Sketcher.Constraint("Diameter", 0, Q("177.8 mm")),
    Sketcher.Constraint("DistanceX", 3, 3, 1, 3, Q("2.000002 mm")),
    Sketcher.Constraint("DistanceY", 5, 3, 7, 3, Q("2.000002 mm")),
    Sketcher.Constraint("DistanceX", 3, 3, 15, 3, Q("22.999999 mm")),
    Sketcher.Constraint("DistanceX", 9, 3, 15, 3, Q("2.000002 mm")),
    Sketcher.Constraint("DistanceY", 5, 3, 21, 3, Q("22.999999 mm")),
    Sketcher.Constraint("DistanceY", 19, 3, 21, 3, Q("2.000002 mm")),
    Sketcher.Constraint("DistanceX", 23, 3, 17, 3, Q("2.000002 mm")),
    Sketcher.Constraint("DistanceX", 23, 3, 30, 3, Q("22.999999 mm")),
    Sketcher.Constraint("DistanceX", 28, 3, 30, 3, Q("2.000002 mm")),
    Sketcher.Constraint("DistanceY", 13, 3, 32, 3, Q("22.999999 mm")),
    Sketcher.Constraint("DistanceY", 26, 3, 32, 3, Q("2.000002 mm")),
    Sketcher.Constraint("DistanceX", 3, 3, -1, 1, Q("11.499999 mm")),
    Sketcher.Constraint("DistanceY", 5, 3, -1, 1, Q("11.499999 mm")),
    Sketcher.Constraint("DistanceY", 13, 3, -1, 1, Q("11.499999 mm")),
    Sketcher.Constraint("DistanceX", 23, 3, -1, 1, Q("11.499999 mm")),
    Sketcher.Constraint("DistanceX", -1, 1, 10, 2, Q("16.184999 mm")),
    Sketcher.Constraint("Radius", 4, Q("73.781893 mm")),
    Sketcher.Constraint("Radius", 8, Q("18.214947 mm")),
    Sketcher.Constraint("Radius", 10, Q("18.214934 mm")),
    Sketcher.Constraint("Radius", 11, Q("6.000003 mm")),
    Sketcher.Constraint("Radius", 14, Q("73.781893 mm")),
    Sketcher.Constraint("Radius", 18, Q("18.214947 mm")),
    Sketcher.Constraint("Radius", 22, Q("73.781893 mm")),
    Sketcher.Constraint("Radius", 27, Q("18.214947 mm")),
    Sketcher.Constraint("Radius", 31, Q("73.781893 mm")),
    Sketcher.Constraint("DistanceY", 1, 1, -1, 1, Q("22.273598 mm")),
    Sketcher.Constraint("DistanceX", 6, 2, -1, 1, Q("22.273598 mm")),
    Sketcher.Constraint("DistanceY", 16, 2, -1, 1, Q("22.273598 mm")),
    Sketcher.Constraint("DistanceX", 19, 1, -1, 1, Q("22.273598 mm")),
    Sketcher.Constraint("DistanceY", -1, 1, 24, 2, Q("22.273598 mm")),
    Sketcher.Constraint("DistanceY", -1, 1, 28, 1, Q("22.273598 mm")),
    Sketcher.Constraint("DistanceX", -1, 1, 33, 2, Q("22.273598 mm")),
    Sketcher.Constraint("DistanceX", 7, 3, 1, 3, Q("12.773599 mm")),
    Sketcher.Constraint("DistanceY", 1, 3, 7, 3, Q("12.773599 mm")),
    Sketcher.Constraint("DistanceY", 9, 1, 11, 3, Q("5.6456 mm")),
    Sketcher.Constraint("DistanceY", 10, 2, 26, 1, Q("15.502499 mm")),
    Sketcher.Constraint("Distance", 12, Q("43.504939 mm")),
    Sketcher.Constraint("DistanceX", 6, 1, 6, 2, Q("42.495283 mm")),
    Sketcher.Constraint("DistanceX", 20, 2, 20, 1, Q("42.495283 mm")),
    Sketcher.Constraint("DistanceX", 33, 2, 33, 1, Q("42.495283 mm")),
    Sketcher.Constraint("DistanceY", 2, 2, 2, 1, Q("42.495283 mm")),
    Sketcher.Constraint("DistanceY", 16, 1, 16, 2, Q("42.495283 mm")),
    Sketcher.Constraint("DistanceY", 24, 2, 24, 1, Q("42.495283 mm")),
    Sketcher.Constraint("DistanceY", 29, 1, 29, 2, Q("42.495283 mm")),
    Sketcher.Constraint("DistanceX", -1, 1, 11, 3, Q("21.51634 mm")),
    Sketcher.Constraint("DistanceX", 3, 1, -1, 1, Q("12.898561 mm")),
    Sketcher.Constraint("DistanceY", 4, 1, -1, 1, Q("12.898561 mm")),
    Sketcher.Constraint("DistanceY", 7, 1, -1, 1, Q("7.146081 mm")),
    Sketcher.Constraint("DistanceX", 8, 2, -1, 1, Q("7.146081 mm")),
    Sketcher.Constraint("DistanceX", -1, 1, 11, 1, Q("21.29386 mm")),
    Sketcher.Constraint("DistanceY", 13, 1, -1, 1, Q("12.898561 mm")),
    Sketcher.Constraint("DistanceX", -1, 1, 14, 1, Q("12.898561 mm")),
    Sketcher.Constraint("DistanceX", 17, 1, -1, 1, Q("7.146081 mm")),
    Sketcher.Constraint("DistanceY", -1, 1, 18, 2, Q("7.146081 mm")),
    Sketcher.Constraint("DistanceY", -1, 1, 21, 1, Q("12.898561 mm")),
    Sketcher.Constraint("DistanceX", 22, 1, -1, 1, Q("12.898561 mm")),
    Sketcher.Constraint("DistanceX", -1, 1, 27, 2, Q("7.146081 mm")),
    Sketcher.Constraint("DistanceX", -1, 1, 30, 1, Q("12.898561 mm")),
    Sketcher.Constraint("DistanceY", -1, 1, 31, 1, Q("12.898561 mm")),
])
pad3 = body.newObject("PartDesign::Pad", "Pad002")
pad3.Profile = sketch3
pad3.Length = 1

doc.recompute()
